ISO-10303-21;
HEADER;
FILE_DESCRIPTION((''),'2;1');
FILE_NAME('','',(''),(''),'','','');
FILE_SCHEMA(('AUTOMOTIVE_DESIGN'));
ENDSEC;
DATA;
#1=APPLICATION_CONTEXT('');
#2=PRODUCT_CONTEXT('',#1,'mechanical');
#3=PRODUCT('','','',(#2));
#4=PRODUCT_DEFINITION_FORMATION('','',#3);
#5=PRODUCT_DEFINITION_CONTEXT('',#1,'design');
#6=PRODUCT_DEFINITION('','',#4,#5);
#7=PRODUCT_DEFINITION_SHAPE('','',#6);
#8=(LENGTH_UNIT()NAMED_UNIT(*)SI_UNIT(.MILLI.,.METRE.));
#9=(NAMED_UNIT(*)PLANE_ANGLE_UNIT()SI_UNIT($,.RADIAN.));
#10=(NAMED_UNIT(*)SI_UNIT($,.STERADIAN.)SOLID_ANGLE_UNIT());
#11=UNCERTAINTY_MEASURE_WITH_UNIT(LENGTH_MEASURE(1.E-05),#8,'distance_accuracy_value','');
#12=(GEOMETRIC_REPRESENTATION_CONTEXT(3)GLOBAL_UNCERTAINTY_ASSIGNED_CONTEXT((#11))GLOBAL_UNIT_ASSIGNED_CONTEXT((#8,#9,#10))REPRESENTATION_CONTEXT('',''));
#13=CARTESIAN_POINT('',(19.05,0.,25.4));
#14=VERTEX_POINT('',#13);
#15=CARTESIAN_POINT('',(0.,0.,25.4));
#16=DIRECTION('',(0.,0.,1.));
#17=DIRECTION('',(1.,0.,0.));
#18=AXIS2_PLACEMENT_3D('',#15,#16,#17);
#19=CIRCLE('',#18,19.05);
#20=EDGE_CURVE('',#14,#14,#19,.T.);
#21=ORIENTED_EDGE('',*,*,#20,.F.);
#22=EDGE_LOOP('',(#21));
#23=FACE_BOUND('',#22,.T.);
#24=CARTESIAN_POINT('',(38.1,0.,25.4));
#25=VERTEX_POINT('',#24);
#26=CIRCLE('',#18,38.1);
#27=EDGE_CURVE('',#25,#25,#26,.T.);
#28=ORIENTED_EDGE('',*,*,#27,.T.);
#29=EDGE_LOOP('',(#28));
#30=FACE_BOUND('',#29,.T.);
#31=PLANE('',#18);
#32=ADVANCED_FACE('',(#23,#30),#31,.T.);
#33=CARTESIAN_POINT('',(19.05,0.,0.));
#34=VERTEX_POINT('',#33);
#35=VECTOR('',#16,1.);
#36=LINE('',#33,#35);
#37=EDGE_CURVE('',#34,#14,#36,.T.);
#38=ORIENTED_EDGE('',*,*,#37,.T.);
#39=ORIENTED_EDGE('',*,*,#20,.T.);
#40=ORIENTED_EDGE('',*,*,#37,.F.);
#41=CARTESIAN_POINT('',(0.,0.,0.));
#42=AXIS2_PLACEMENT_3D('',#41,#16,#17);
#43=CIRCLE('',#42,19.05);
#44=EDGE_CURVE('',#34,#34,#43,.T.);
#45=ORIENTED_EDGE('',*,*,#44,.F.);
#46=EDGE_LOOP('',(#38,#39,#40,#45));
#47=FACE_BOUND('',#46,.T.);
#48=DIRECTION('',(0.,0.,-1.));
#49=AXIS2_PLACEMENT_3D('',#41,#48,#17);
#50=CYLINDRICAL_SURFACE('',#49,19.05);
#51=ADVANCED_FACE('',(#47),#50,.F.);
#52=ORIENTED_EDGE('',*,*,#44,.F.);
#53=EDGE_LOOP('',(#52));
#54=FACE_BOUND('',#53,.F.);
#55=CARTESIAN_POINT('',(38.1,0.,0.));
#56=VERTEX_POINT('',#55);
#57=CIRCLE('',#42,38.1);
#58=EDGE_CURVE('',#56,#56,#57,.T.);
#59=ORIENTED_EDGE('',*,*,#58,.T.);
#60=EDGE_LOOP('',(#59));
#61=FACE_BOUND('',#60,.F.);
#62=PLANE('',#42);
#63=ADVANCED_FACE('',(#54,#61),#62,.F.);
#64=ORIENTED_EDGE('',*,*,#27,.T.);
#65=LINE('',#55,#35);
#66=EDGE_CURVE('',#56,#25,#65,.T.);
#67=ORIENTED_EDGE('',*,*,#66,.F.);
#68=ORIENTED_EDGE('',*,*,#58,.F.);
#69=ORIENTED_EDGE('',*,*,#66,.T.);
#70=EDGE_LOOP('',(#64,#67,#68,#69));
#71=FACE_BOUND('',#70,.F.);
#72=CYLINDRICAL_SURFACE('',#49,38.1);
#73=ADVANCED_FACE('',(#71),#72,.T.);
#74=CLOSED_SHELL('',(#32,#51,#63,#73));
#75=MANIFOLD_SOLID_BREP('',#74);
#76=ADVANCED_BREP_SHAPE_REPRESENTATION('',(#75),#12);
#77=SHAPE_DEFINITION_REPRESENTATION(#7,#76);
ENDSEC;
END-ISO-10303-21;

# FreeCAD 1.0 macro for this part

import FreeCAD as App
import Part
import Sketcher

V = App.Vector
Q = App.Units.Quantity

doc = App.newDocument("Part")
body = doc.addObject("PartDesign::Body", "Body")

sketch1 = body.newObject("Sketcher::SketchObject", "Sketch")
sketch1.AttachmentSupport = (doc.getObject("XY_Plane"), [""])
sketch1.MapMode = "FlatFace"
sketch1.addGeometry(Part.Circle(V(0, 0, 0), V(0, 0, 1), 38), False)
sketch1.addGeometry(Part.Circle(V(0, 0, 0), V(0, 0, 1), 19), False)
sketch1.addConstraint(Sketcher.Constraint("Coincident", 0, 3, -1, 1))
sketch1.addConstraint(Sketcher.Constraint("Coincident", 1, 3, -1, 1))
sketch1.addConstraint(Sketcher.Constraint("Diameter", 0, Q("3 in")))
sketch1.addConstraint(Sketcher.Constraint("Diameter", 1, Q("1.5 in")))
pad1 = body.newObject("PartDesign::Pad", "Pad")
pad1.Profile = sketch1
pad1.Length = Q("1 in")

doc.recompute()
